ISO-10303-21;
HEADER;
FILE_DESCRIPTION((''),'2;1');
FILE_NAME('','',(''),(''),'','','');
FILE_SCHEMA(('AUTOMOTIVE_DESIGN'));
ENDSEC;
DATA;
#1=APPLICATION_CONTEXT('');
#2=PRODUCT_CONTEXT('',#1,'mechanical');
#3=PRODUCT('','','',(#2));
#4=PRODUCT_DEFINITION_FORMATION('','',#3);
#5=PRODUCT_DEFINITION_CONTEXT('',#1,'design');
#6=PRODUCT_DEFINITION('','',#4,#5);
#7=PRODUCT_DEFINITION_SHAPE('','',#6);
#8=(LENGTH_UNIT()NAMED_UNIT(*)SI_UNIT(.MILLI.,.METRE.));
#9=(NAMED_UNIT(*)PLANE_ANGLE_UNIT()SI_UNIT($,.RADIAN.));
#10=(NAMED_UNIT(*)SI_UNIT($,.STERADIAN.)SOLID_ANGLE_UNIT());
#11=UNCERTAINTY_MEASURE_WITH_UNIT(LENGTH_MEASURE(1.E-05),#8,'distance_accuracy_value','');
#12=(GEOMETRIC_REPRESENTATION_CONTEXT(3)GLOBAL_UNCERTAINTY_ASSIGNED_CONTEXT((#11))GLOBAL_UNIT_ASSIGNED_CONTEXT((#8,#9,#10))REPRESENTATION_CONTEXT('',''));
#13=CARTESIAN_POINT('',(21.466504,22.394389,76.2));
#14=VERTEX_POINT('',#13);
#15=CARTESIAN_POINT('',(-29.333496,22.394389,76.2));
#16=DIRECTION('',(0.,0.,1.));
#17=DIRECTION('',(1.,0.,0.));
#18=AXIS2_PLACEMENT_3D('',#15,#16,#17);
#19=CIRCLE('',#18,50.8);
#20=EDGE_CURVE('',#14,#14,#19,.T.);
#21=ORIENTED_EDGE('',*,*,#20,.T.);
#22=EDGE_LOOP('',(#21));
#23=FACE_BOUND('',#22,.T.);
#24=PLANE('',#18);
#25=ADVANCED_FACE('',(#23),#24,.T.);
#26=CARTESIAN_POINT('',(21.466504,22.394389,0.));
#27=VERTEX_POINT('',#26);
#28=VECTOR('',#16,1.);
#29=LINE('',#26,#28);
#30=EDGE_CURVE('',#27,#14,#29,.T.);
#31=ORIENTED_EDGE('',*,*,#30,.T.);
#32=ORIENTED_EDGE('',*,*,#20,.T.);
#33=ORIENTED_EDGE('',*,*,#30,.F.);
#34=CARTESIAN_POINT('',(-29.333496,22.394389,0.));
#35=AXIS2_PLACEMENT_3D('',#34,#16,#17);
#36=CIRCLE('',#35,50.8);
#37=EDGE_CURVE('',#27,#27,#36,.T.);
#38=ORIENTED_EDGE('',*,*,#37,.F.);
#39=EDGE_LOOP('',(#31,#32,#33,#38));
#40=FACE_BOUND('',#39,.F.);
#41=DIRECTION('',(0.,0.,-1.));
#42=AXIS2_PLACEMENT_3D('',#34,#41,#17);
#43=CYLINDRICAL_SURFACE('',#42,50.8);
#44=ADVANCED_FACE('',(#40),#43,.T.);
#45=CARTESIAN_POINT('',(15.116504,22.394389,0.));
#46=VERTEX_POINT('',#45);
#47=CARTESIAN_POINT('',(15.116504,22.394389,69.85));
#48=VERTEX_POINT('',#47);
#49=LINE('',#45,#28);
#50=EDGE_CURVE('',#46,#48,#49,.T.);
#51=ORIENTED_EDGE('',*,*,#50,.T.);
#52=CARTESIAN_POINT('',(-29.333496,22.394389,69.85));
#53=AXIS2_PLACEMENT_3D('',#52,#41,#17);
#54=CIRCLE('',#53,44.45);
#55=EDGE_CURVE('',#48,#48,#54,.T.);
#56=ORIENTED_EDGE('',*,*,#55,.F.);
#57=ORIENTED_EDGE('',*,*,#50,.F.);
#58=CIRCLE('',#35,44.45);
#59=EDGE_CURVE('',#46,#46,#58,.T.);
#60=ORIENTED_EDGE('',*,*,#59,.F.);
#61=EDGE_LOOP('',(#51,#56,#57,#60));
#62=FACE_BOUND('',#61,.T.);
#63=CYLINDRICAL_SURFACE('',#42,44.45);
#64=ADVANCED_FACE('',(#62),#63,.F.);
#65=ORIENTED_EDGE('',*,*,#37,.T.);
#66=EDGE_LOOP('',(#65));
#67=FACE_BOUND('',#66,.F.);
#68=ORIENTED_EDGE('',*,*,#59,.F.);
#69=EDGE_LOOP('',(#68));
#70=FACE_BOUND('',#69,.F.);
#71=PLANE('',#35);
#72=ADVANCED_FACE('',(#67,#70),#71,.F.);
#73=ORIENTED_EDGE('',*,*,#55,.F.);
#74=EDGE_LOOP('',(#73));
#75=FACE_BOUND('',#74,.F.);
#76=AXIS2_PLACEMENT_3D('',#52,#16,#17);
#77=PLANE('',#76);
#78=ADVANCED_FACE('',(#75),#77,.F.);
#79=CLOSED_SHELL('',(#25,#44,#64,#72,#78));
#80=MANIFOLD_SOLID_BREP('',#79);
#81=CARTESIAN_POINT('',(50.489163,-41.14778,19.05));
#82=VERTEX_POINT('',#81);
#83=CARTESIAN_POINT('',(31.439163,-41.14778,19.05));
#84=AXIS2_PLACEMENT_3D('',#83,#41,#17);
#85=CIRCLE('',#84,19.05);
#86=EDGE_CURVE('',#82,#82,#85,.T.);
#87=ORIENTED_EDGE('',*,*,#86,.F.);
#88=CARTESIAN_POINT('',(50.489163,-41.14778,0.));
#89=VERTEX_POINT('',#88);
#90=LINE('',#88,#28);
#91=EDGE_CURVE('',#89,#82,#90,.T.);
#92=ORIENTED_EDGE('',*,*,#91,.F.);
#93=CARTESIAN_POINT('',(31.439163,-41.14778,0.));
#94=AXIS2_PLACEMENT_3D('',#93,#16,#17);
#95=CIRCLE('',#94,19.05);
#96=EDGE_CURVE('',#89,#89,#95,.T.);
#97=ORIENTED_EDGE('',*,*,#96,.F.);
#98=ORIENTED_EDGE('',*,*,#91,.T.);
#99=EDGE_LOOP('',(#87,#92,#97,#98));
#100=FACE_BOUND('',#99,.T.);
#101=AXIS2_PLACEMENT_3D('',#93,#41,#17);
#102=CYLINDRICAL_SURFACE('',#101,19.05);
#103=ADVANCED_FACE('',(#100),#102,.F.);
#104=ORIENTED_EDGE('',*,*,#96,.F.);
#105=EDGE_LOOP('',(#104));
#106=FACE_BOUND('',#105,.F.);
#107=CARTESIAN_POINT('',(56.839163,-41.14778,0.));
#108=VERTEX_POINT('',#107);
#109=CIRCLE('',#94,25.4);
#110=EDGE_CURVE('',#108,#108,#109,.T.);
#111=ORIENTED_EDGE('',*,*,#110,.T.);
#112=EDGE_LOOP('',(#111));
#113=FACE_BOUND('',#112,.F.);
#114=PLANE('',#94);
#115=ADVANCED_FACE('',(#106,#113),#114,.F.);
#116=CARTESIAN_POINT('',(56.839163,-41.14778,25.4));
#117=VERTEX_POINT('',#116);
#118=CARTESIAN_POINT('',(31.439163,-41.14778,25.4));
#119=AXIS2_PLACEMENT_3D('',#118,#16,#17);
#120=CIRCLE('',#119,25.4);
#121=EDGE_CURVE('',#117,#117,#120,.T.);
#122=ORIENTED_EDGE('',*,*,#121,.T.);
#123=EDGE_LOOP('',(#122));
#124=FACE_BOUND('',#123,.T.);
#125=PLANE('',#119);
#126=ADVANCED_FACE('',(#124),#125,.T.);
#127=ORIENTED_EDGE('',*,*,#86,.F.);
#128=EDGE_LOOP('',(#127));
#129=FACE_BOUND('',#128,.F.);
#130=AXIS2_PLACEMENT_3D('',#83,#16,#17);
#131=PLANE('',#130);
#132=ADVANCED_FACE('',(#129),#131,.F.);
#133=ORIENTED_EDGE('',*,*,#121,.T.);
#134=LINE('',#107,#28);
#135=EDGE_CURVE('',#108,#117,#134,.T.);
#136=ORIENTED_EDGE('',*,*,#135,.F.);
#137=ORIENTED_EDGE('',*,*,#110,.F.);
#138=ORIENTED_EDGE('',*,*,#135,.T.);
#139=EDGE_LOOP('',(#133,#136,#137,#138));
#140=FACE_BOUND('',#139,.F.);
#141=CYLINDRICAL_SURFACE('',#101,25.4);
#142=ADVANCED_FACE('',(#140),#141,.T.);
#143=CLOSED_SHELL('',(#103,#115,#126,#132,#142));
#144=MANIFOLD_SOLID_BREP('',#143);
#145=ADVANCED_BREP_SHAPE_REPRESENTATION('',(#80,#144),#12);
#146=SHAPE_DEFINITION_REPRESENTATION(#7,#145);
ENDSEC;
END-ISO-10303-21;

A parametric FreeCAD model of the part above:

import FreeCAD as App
import Part
import Sketcher
Q = App.Units.Quantity


def faces_at(feature, points):
    """Names of the faces that lie closest to the given points."""
    faces = feature.Shape.Faces
    near = lambda p: min(range(len(faces)), key=lambda i: faces[i].distToShape(Part.Vertex(*p))[0])
    return sorted({f"Face{near(p) + 1}" for p in points})

doc = App.newDocument("Part")
body = doc.addObject("PartDesign::Body", "Body")

sketch1 = doc.addObject("Sketcher::SketchObject", "Sketch")
body.addObject(sketch1)
sketch1.AttachmentSupport = (doc.XY_Plane, [""])
sketch1.MapMode = "FlatFace"
sketch1.addGeometry(Part.Circle(App.Vector(-29.333496, 22.394389, 0), App.Vector(0, 0, 1), 50.8), False)
sketch1.addConstraint([
    Sketcher.Constraint("Diameter", 0, Q("4 in")),
    Sketcher.Constraint("DistanceY", -1, 1, 0, 3, Q("22.394389 mm")),
    Sketcher.Constraint("DistanceX", 0, 3, -1, 1, Q("29.333496 mm")),
])
pad1 = doc.addObject("PartDesign::Pad", "Pad")
body.addObject(pad1)
pad1.Profile = sketch1
pad1.Length = Q("3 in")
doc.recompute()

thickness = doc.addObject("PartDesign::Thickness", "Thickness")
body.addObject(thickness)
thickness.Base = (pad1, faces_at(pad1, [(-29.333, 22.394, 0)]))
thickness.Value = Q("0.25 in")
thickness.Reversed = True
thickness.Join = "Arc"
body2 = doc.addObject("PartDesign::Body", "Body001")

sketch2 = doc.addObject("Sketcher::SketchObject", "Sketch001")
body2.addObject(sketch2)
sketch2.AttachmentSupport = (doc.getObject("XY_Plane001"), [""])
sketch2.MapMode = "FlatFace"
sketch2.addGeometry(Part.Circle(App.Vector(31.439163, -41.14778, 0), App.Vector(0, 0, 1), 25.4), False)
sketch2.addConstraint([
    Sketcher.Constraint("Diameter", 0, Q("2 in")),
    Sketcher.Constraint("DistanceY", 0, 3, -1, 1, Q("41.14778 mm")),
    Sketcher.Constraint("DistanceX", -1, 1, 0, 3, Q("31.439163 mm")),
])
pad2 = doc.addObject("PartDesign::Pad", "Pad001")
body2.addObject(pad2)
pad2.Profile = sketch2
pad2.Length = Q("1 in")
doc.recompute()

thickness2 = doc.addObject("PartDesign::Thickness", "Thickness001")
body2.addObject(thickness2)
thickness2.Base = (pad2, faces_at(pad2, [(31.439, -41.148, 0)]))
thickness2.Value = Q("0.25 in")
thickness2.Reversed = True
thickness2.Join = "Arc"

doc.recompute()
